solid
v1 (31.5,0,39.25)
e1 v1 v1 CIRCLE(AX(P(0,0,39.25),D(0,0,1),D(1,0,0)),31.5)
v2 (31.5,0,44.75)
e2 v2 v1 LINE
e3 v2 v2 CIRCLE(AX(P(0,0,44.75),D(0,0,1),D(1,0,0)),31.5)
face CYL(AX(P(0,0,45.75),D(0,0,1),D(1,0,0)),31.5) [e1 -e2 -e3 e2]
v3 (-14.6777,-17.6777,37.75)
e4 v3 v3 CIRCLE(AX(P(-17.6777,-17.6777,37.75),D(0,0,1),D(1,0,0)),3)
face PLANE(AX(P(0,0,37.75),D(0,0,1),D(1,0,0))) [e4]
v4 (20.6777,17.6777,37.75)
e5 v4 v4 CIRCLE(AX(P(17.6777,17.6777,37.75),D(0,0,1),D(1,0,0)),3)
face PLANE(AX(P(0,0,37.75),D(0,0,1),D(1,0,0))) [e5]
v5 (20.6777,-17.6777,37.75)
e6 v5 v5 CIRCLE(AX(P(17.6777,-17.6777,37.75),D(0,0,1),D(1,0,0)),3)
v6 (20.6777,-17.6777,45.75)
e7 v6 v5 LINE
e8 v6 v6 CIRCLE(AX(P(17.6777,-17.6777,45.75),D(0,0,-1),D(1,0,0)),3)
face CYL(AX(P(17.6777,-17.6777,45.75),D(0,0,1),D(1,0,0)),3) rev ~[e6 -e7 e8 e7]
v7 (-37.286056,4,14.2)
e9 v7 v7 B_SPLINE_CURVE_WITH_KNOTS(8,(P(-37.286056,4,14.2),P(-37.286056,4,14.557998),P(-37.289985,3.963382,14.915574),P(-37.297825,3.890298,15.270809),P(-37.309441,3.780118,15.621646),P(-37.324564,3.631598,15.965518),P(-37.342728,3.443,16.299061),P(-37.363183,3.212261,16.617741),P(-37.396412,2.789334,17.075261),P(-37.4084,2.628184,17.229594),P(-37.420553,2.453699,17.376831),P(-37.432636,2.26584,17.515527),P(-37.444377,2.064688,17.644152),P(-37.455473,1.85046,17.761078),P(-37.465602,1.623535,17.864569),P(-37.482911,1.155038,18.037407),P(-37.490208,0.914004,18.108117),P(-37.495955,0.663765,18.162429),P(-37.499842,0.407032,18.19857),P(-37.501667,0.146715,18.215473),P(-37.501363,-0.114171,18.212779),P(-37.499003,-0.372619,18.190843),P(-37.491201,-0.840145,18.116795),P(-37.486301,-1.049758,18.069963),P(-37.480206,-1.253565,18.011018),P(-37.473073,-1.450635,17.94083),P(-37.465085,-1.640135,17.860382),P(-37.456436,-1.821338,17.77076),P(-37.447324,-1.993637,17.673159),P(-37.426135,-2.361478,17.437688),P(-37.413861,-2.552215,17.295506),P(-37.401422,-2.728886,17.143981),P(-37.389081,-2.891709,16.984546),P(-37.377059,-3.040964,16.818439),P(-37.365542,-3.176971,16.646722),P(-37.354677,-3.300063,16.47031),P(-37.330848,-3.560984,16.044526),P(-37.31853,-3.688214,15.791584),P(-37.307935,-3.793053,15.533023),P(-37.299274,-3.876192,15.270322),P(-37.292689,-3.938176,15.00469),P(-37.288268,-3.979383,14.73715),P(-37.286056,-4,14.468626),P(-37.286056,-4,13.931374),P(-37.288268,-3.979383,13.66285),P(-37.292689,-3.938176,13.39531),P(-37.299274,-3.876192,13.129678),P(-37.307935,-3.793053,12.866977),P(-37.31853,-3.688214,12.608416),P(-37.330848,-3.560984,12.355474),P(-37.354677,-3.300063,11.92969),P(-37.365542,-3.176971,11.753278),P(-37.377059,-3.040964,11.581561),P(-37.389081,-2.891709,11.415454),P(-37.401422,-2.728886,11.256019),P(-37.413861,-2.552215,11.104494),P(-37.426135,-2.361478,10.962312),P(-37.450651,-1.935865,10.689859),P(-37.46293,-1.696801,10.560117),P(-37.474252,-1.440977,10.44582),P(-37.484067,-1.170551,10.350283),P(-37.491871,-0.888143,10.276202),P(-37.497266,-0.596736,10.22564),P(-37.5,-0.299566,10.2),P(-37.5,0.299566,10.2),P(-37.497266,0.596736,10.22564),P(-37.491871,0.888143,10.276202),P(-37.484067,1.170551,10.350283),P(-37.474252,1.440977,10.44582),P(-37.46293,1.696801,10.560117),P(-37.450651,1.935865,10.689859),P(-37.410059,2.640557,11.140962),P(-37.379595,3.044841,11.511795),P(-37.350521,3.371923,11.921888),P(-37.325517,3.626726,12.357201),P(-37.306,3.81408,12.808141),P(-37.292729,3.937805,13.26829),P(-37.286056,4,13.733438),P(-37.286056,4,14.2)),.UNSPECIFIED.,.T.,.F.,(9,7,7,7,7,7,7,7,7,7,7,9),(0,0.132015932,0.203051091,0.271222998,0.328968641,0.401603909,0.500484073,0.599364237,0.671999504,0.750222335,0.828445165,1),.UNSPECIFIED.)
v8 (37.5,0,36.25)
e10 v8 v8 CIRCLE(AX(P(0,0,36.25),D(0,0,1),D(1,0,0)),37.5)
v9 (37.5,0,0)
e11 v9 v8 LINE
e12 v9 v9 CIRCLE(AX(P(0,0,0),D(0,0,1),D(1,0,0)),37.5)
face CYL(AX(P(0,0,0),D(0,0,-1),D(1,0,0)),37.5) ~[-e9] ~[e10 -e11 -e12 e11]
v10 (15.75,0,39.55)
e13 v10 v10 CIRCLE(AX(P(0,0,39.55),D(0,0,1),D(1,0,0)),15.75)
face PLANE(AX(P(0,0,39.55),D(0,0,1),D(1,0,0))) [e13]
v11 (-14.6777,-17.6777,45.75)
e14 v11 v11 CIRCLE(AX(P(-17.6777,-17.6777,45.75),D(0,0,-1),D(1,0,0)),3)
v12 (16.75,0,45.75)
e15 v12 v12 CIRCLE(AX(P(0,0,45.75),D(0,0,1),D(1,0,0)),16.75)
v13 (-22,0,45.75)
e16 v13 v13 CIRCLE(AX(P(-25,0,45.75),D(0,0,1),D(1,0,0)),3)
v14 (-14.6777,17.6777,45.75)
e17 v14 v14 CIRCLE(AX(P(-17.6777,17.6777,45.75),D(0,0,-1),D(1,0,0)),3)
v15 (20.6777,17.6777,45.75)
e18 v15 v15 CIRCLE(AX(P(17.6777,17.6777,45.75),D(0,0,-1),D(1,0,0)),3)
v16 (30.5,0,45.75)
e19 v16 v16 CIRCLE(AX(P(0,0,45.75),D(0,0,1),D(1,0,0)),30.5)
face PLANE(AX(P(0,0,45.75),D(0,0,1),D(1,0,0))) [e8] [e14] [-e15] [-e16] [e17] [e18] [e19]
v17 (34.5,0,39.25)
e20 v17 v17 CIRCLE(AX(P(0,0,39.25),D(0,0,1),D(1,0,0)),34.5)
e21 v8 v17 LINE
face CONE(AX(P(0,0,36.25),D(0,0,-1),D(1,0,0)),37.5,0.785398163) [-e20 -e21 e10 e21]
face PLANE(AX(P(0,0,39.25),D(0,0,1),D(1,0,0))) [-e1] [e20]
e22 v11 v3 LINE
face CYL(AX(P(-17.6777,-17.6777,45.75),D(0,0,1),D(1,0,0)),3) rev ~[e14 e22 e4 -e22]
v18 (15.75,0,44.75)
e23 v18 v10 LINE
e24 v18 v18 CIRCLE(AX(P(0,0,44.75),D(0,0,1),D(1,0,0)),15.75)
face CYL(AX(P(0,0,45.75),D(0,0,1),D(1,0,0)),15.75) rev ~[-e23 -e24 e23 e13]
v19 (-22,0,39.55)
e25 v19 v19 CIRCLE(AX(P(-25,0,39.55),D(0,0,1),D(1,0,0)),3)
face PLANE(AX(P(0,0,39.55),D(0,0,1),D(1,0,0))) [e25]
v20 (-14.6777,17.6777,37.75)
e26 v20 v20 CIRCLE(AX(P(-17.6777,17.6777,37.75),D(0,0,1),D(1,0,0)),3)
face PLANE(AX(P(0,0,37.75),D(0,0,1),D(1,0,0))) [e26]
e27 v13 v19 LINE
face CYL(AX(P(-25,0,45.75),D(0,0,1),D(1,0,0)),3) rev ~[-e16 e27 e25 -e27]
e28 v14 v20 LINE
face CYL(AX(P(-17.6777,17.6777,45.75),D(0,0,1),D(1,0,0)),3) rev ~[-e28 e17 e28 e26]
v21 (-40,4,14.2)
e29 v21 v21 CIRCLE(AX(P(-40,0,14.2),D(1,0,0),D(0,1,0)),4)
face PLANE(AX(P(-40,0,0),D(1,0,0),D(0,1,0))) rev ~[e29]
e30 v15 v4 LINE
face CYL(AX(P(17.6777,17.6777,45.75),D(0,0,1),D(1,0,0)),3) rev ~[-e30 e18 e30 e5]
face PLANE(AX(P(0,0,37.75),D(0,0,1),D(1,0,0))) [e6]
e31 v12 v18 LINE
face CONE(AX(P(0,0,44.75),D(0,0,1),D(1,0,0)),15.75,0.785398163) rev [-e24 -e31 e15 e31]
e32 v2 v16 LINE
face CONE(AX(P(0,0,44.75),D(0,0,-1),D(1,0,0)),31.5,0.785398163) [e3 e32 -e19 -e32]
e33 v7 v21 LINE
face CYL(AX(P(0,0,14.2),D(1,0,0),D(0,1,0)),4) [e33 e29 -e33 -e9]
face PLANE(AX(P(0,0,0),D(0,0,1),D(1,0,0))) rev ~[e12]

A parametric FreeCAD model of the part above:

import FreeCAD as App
import Part
import Sketcher
from FreeCAD import Vector
Q = App.Units.Quantity


def edges_at(feature, points):
    """Names of the edges that pass closest to the given points."""
    edges = feature.Shape.Edges
    near = lambda p: min(range(len(edges)), key=lambda i: edges[i].distToShape(Part.Vertex(*p))[0])
    return sorted({f"Edge{near(p) + 1}" for p in points})

doc = App.newDocument("Part")
body = doc.addObject("PartDesign::Body", "Body")

# Sketch on XY plane
sketch1 = body.newObject("Sketcher::SketchObject", "Sketch")
sketch1.AttachmentSupport = (doc.getObject("XY_Plane"), [""])
sketch1.MapMode = "FlatFace"
sketch1.addGeometry(Part.Circle(Vector(0, 0, 0), Vector(0, 0, 1), 37.5), False)
sketch1.addConstraint([
    Sketcher.Constraint("Coincident", 0, 3, -1, 1),
    Sketcher.Constraint("Diameter", 0, Q("75 mm")),
])
pad1 = body.newObject("PartDesign::Pad", "Pad")
pad1.Profile = sketch1
pad1.Length = 45.75

# Sketch on XY plane
sketch2 = body.newObject("Sketcher::SketchObject", "Sketch001")
sketch2.AttachmentSupport = (doc.getObject("XY_Plane"), [""])
sketch2.MapMode = "FlatFace"
sketch2.AttachmentOffset = App.Placement(Vector(0, 0, 45.75), App.Rotation())
sketch2.addGeometry([
    Part.Circle(Vector(0, 0, 0), Vector(0, 0, 1), 37.5),
    Part.Circle(Vector(0, 0, 0), Vector(0, 0, 1), 31.5),
], False)
sketch2.addConstraint([
    Sketcher.Constraint("Coincident", 0, 3, -1, 1),
    Sketcher.Constraint("Coincident", 1, 3, -1, 1),
    Sketcher.Constraint("Diameter", 1, Q("63 mm")),
    Sketcher.Constraint("Diameter", 0, Q("75 mm")),
])
pocket1 = body.newObject("PartDesign::Pocket", "Pocket")
pocket1.Profile = sketch2
pocket1.Length = 6.5
doc.recompute()

chamfer = body.newObject("PartDesign::Chamfer", "Chamfer")
chamfer.Base = (pocket1, edges_at(pocket1, [(-37.5, 0, 39.25)]))
chamfer.Size = 3
doc.recompute()

chamfer2 = body.newObject("PartDesign::Chamfer", "Chamfer001")
chamfer2.Base = (chamfer, edges_at(chamfer, [(-31.5, 0, 45.75)]))
chamfer2.Size = 1

# Sketch on XY plane
sketch3 = body.newObject("Sketcher::SketchObject", "Sketch002")
sketch3.AttachmentSupport = (doc.getObject("XY_Plane"), [""])
sketch3.MapMode = "FlatFace"
sketch3.AttachmentOffset = App.Placement(Vector(0, 0, 45.75), App.Rotation())
sketch3.addGeometry(Part.Circle(Vector(0, 0, 0), Vector(0, 0, 1), 15.75), False)
sketch3.addConstraint([
    Sketcher.Constraint("Coincident", 0, 3, -1, 1),
    Sketcher.Constraint("Diameter", 0, Q("31.5 mm")),
])
pocket2 = body.newObject("PartDesign::Pocket", "Pocket001")
pocket2.Profile = sketch3
pocket2.Length = 6.2
doc.recompute()

chamfer3 = body.newObject("PartDesign::Chamfer", "Chamfer002")
chamfer3.Base = (pocket2, edges_at(pocket2, [(-15.75, 0, 45.75)]))
chamfer3.Size = 1

# Sketch on XY plane
sketch4 = body.newObject("Sketcher::SketchObject", "Sketch003")
sketch4.AttachmentSupport = (doc.getObject("XY_Plane"), [""])
sketch4.MapMode = "FlatFace"
sketch4.AttachmentOffset = App.Placement(Vector(0, 0, 45.75), App.Rotation())
sketch4.addGeometry(Part.Circle(Vector(-25, 0, 0), Vector(0, 0, 1), 3), False)
sketch4.addConstraint([
    Sketcher.Constraint("PointOnObject", 0, 3, -1),
    Sketcher.Constraint("Diameter", 0, Q("6 mm")),
    Sketcher.Constraint("DistanceX", 0, 3, -1, 1, Q("25 mm")),
])
pocket3 = body.newObject("PartDesign::Pocket", "Pocket002")
pocket3.Profile = sketch4
pocket3.Length = 6.2

# Sketch on XY plane
sketch5 = body.newObject("Sketcher::SketchObject", "Sketch004")
sketch5.AttachmentSupport = (doc.getObject("XY_Plane"), [""])
sketch5.MapMode = "FlatFace"
sketch5.AttachmentOffset = App.Placement(Vector(0, 0, 45.75), App.Rotation())
sketch5.addGeometry([
    Part.Circle(Vector(17.6777, 17.6777, 0), Vector(0, 0, 1), 3),
    Part.Circle(Vector(17.6777, -17.6777, 0), Vector(0, 0, 1), 3),
    Part.Circle(Vector(-17.6777, 17.6777, 0), Vector(0, 0, 1), 3),
    Part.Circle(Vector(-17.6777, -17.6777, 0), Vector(0, 0, 1), 3),
], False)
sketch5.addConstraint([
    Sketcher.Constraint("Equal", 0, 1),
    Sketcher.Constraint("Equal", 1, 2),
    Sketcher.Constraint("Equal", 2, 3),
    Sketcher.Constraint("Symmetric", 1, 3, 2, 3, -1, 1),
    Sketcher.Constraint("Symmetric", 0, 3, 3, 3, -1, 1),
    Sketcher.Constraint("Symmetric", 0, 3, 2, 3, -2),
    Sketcher.Constraint("Diameter", 0, Q("6 mm")),
    Sketcher.Constraint("DistanceX", -1, 1, 0, 3, Q("17.6777 mm")),
    Sketcher.Constraint("DistanceY", -1, 1, 0, 3, Q("17.6777 mm")),
])
pocket4 = body.newObject("PartDesign::Pocket", "Pocket003")
pocket4.Profile = sketch5
pocket4.Length = 8

# Sketch on YZ plane
sketch6 = body.newObject("Sketcher::SketchObject", "Sketch005")
sketch6.AttachmentSupport = (doc.getObject("YZ_Plane"), [""])
sketch6.MapMode = "FlatFace"
sketch6.addGeometry(Part.Circle(Vector(0, 14.2, 0), Vector(0, 0, 1), 4), False)
sketch6.addConstraint([
    Sketcher.Constraint("PointOnObject", 0, 3, -2),
    Sketcher.Constraint("Diameter", 0, Q("8 mm")),
    Sketcher.Constraint("DistanceY", -1, 1, 0, 3, Q("14.2 mm")),
])
pad2 = body.newObject("PartDesign::Pad", "Pad001")
pad2.Profile = sketch6
pad2.Length = 40
pad2.Reversed = True

doc.recompute()
